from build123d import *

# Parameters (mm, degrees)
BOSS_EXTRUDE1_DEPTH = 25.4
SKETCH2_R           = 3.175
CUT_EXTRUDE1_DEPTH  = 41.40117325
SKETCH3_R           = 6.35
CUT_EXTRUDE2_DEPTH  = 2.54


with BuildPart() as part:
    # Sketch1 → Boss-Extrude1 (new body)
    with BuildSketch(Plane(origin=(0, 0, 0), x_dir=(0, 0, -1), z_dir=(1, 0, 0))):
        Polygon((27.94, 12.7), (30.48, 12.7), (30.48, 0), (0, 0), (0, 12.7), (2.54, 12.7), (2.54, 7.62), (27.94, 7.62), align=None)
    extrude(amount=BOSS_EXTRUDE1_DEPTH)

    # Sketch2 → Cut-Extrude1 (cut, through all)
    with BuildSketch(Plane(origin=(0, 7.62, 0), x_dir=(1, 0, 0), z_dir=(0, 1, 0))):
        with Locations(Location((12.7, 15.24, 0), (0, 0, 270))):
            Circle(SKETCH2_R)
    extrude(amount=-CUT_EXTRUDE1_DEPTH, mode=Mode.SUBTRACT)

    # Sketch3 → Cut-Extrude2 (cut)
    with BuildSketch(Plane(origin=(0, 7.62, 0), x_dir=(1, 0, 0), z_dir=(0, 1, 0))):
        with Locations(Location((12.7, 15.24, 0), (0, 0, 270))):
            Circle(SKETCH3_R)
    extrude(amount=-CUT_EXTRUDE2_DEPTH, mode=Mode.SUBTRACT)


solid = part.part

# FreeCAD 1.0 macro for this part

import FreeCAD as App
import Part
import Sketcher

V = App.Vector
Q = App.Units.Quantity

doc = App.newDocument("Part")
body = doc.addObject("PartDesign::Body", "Body")

sketch1 = body.newObject("Sketcher::SketchObject", "Sketch")
sketch1.AttachmentSupport = (doc.getObject("YZ_Plane"), [""])
sketch1.MapMode = "FlatFace"
sketch1.addGeometry(Part.LineSegment(V(12.7, -30.5, 0), V(12.7, -27.9, 0)), False)
sketch1.addGeometry(Part.LineSegment(V(12.7, -27.9, 0), V(7.6, -27.9, 0)), False)
sketch1.addGeometry(Part.LineSegment(V(7.6, -27.9, 0), V(7.6, -2.5, 0)), False)
sketch1.addGeometry(Part.LineSegment(V(7.6, -2.5, 0), V(12.7, -2.5, 0)), False)
sketch1.addGeometry(Part.LineSegment(V(12.7, -2.5, 0), V(12.7, 0, 0)), False)
sketch1.addGeometry(Part.LineSegment(V(12.7, 0, 0), V(0, 0, 0)), False)
sketch1.addGeometry(Part.LineSegment(V(0, 0, 0), V(0, -30.5, 0)), False)
sketch1.addGeometry(Part.LineSegment(V(0, -30.5, 0), V(12.7, -30.5, 0)), False)
sketch1.addConstraint(Sketcher.Constraint("Coincident", 0, 2, 1, 1))
sketch1.addConstraint(Sketcher.Constraint("Coincident", 1, 2, 2, 1))
sketch1.addConstraint(Sketcher.Constraint("Coincident", 2, 2, 3, 1))
sketch1.addConstraint(Sketcher.Constraint("Coincident", 3, 2, 4, 1))
sketch1.addConstraint(Sketcher.Constraint("Coincident", 4, 2, 5, 1))
sketch1.addConstraint(Sketcher.Constraint("Coincident", 5, 2, 6, 1))
sketch1.addConstraint(Sketcher.Constraint("Coincident", 6, 2, 7, 1))
sketch1.addConstraint(Sketcher.Constraint("Coincident", 7, 2, 0, 1))
sketch1.addConstraint(Sketcher.Constraint("Vertical", 0))
sketch1.addConstraint(Sketcher.Constraint("Horizontal", 1))
sketch1.addConstraint(Sketcher.Constraint("Vertical", 2))
sketch1.addConstraint(Sketcher.Constraint("Horizontal", 3))
sketch1.addConstraint(Sketcher.Constraint("Vertical", 4))
sketch1.addConstraint(Sketcher.Constraint("Horizontal", 5))
sketch1.addConstraint(Sketcher.Constraint("Vertical", 6))
sketch1.addConstraint(Sketcher.Constraint("Horizontal", 7))
sketch1.addConstraint(Sketcher.Constraint("Coincident", 5, 2, -1, 1))
sketch1.addConstraint(Sketcher.Constraint("Vertical", 0, 2, 3, 2))
sketch1.addConstraint(Sketcher.Constraint("Equal", 0, 4))
sketch1.addConstraint(Sketcher.Constraint("DistanceY", 2, 1, 2, 2, Q("1 in")))
sketch1.addConstraint(Sketcher.Constraint("DistanceX", 1, 2, 1, 1, Q("0.2 in")))
sketch1.addConstraint(Sketcher.Constraint("DistanceX", 5, 2, 5, 1, Q("0.5 in")))
sketch1.addConstraint(Sketcher.Constraint("DistanceY", 0, 1, 0, 2, Q("0.1 in")))
pad1 = body.newObject("PartDesign::Pad", "Pad")
pad1.Profile = sketch1
pad1.Length = Q("1 in")

sketch2 = body.newObject("Sketcher::SketchObject", "Sketch001")
sketch2.AttachmentSupport = (doc.getObject("XZ_Plane"), [""])
sketch2.MapMode = "FlatFace"
sketch2.AttachmentOffset = App.Placement(V(0, 0, -0.3 * 25.4), App.Rotation())
sketch2.addGeometry(Part.Circle(V(12.7, -15.2, 0), V(0, 0, 1), 3.2), False)
sketch2.addConstraint(Sketcher.Constraint("Diameter", 0, Q("0.25 in")))
sketch2.addConstraint(Sketcher.Constraint("DistanceX", -1, 1, 0, 3, Q("0.5 in")))
sketch2.addConstraint(Sketcher.Constraint("DistanceY", 0, 3, -1, 1, Q("0.6 in")))
pocket1 = body.newObject("PartDesign::Pocket", "Pocket")
pocket1.Profile = sketch2
pocket1.Type = "ThroughAll"
pocket1.Reversed = True

sketch3 = body.newObject("Sketcher::SketchObject", "Sketch002")
sketch3.AttachmentSupport = (doc.getObject("XZ_Plane"), [""])
sketch3.MapMode = "FlatFace"
sketch3.AttachmentOffset = App.Placement(V(0, 0, -0.3 * 25.4), App.Rotation())
sketch3.addGeometry(Part.Circle(V(13, -15, 0), V(0, 0, 1), 6), False)
sketch3.addConstraint(Sketcher.Constraint("Diameter", 0, Q("0.5 in")))
sketch3.addConstraint(Sketcher.Constraint("DistanceX", -1, 1, 0, 3, Q("0.5 in")))
sketch3.addConstraint(Sketcher.Constraint("DistanceY", 0, 3, -1, 1, Q("0.6 in")))
pocket2 = body.newObject("PartDesign::Pocket", "Pocket001")
pocket2.Profile = sketch3
pocket2.Length = Q("0.1 in")
pocket2.Reversed = True

doc.recompute()
